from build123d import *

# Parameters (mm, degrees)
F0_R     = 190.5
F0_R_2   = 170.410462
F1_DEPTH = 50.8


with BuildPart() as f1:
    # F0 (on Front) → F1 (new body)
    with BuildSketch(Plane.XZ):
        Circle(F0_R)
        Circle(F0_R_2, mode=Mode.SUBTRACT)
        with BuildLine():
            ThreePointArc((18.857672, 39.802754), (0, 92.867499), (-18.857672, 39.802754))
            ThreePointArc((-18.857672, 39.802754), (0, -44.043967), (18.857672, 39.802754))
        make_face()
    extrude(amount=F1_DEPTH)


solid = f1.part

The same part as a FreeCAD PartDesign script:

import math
import FreeCAD as App
import Part
import Sketcher

V = App.Vector
Q = App.Units.Quantity

doc = App.newDocument("Part")
body = doc.addObject("PartDesign::Body", "Body")
body.AllowCompound = True

sketch1 = body.newObject("Sketcher::SketchObject", "Sketch")
sketch1.AttachmentSupport = (doc.getObject("XZ_Plane"), [""])
sketch1.MapMode = "FlatFace"
sketch1.addGeometry(Part.Circle(V(0, 0, 0), V(0, 0, 1), 190), False)
sketch1.addGeometry(Part.Circle(V(0, 0, 0), V(0, 0, 1), 170), False)
sketch1.addGeometry(Part.ArcOfCircle(Part.Circle(V(0, 63, 0), V(0, 0, 1), 30), math.radians(-51), math.radians(231)), False)
sketch1.addGeometry(Part.ArcOfCircle(Part.Circle(V(0, 0, 0), V(0, 0, 1), 44), math.radians(115), math.radians(425)), False)
sketch1.addConstraint(Sketcher.Constraint("Coincident", 2, 1, 3, 2))
sketch1.addConstraint(Sketcher.Constraint("Coincident", 3, 1, 2, 2))
sketch1.addConstraint(Sketcher.Constraint("Coincident", 0, 3, -1, 1))
sketch1.addConstraint(Sketcher.Constraint("Coincident", 1, 3, -1, 1))
sketch1.addConstraint(Sketcher.Constraint("Coincident", 3, 3, -1, 1))
sketch1.addConstraint(Sketcher.Constraint("PointOnObject", 2, 3, -2))
sketch1.addConstraint(Sketcher.Constraint("Diameter", 0, Q("15 in")))
sketch1.addConstraint(Sketcher.Constraint("Diameter", 1, Q("340.820924 mm")))
sketch1.addConstraint(Sketcher.Constraint("Radius", 2, Q("29.883107 mm")))
sketch1.addConstraint(Sketcher.Constraint("Radius", 3, Q("44.043967 mm")))
sketch1.addConstraint(Sketcher.Constraint("DistanceY", -1, 1, 2, 3, Q("62.984392 mm")))
pad1 = body.newObject("PartDesign::Pad", "Pad")
pad1.Profile = sketch1
pad1.Length = Q("2 in")

doc.recompute()
